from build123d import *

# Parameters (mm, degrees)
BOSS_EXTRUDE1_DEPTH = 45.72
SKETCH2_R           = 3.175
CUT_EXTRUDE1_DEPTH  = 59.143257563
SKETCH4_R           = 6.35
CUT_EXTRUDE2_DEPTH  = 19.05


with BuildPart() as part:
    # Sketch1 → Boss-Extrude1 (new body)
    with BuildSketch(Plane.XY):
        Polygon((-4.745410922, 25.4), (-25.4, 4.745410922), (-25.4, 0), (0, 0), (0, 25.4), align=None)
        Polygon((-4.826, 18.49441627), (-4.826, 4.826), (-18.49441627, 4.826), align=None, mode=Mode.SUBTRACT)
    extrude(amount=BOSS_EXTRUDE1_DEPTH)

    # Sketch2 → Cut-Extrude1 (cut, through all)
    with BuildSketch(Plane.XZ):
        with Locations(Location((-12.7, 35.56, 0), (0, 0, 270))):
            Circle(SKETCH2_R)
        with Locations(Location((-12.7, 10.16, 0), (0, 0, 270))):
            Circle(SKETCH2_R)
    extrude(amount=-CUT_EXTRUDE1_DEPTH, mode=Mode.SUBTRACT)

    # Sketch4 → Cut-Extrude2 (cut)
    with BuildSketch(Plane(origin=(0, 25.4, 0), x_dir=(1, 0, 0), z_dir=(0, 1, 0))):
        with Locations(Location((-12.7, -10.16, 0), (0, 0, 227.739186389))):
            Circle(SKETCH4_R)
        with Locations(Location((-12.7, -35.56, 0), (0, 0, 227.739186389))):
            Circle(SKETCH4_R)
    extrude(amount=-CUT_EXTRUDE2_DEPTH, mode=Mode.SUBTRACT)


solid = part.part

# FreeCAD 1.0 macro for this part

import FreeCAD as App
import Part
import Sketcher

V = App.Vector
Q = App.Units.Quantity

doc = App.newDocument("Part")
params = doc.addObject("Spreadsheet::Sheet", "Params")
for row, (alias, value) in enumerate([
    ("sketch1_width", "1 in"),
    ("sketch1_length", "1.15 in"),
    ("pad1_length", "1.8 in"),
    ("sketch2_diameter", "0.25 in"),
    ("sketch3_diameter", "0.5 in"),
    ("pocket2_length", "0.75 in"),
], start=1):
    params.set(f"A{row}", alias)
    params.set(f"B{row}", "=" + value)
    params.setAlias(f"B{row}", alias)

body = doc.addObject("PartDesign::Body", "Body")

sketch1 = body.newObject("Sketcher::SketchObject", "Sketch")
sketch1.AttachmentSupport = (doc.getObject("XY_Plane"), [""])
sketch1.MapMode = "FlatFace"
sketch1.addGeometry(Part.LineSegment(V(-4.7, 25.4, 0), V(-25.4, 4.7, 0)), False)
sketch1.addGeometry(Part.LineSegment(V(-25.4, 4.7, 0), V(-25.4, 0, 0)), False)
sketch1.addGeometry(Part.LineSegment(V(-25.4, 0, 0), V(0, 0, 0)), False)
sketch1.addGeometry(Part.LineSegment(V(0, 0, 0), V(0, 25.4, 0)), False)
sketch1.addGeometry(Part.LineSegment(V(0, 25.4, 0), V(-4.7, 25.4, 0)), False)
sketch1.addGeometry(Part.LineSegment(V(-18.5, 4.8, 0), V(-4.8, 18.5, 0)), False)
sketch1.addGeometry(Part.LineSegment(V(-4.8, 18.5, 0), V(-4.8, 4.8, 0)), False)
sketch1.addGeometry(Part.LineSegment(V(-4.8, 4.8, 0), V(-18.5, 4.8, 0)), False)
sketch1.addConstraint(Sketcher.Constraint("Coincident", 0, 2, 1, 1))
sketch1.addConstraint(Sketcher.Constraint("Coincident", 1, 2, 2, 1))
sketch1.addConstraint(Sketcher.Constraint("Coincident", 2, 2, 3, 1))
sketch1.addConstraint(Sketcher.Constraint("Coincident", 3, 2, 4, 1))
sketch1.addConstraint(Sketcher.Constraint("Coincident", 4, 2, 0, 1))
sketch1.addConstraint(Sketcher.Constraint("Coincident", 5, 2, 6, 1))
sketch1.addConstraint(Sketcher.Constraint("Coincident", 6, 2, 7, 1))
sketch1.addConstraint(Sketcher.Constraint("Coincident", 7, 2, 5, 1))
sketch1.addConstraint(Sketcher.Constraint("Vertical", 1))
sketch1.addConstraint(Sketcher.Constraint("Horizontal", 2))
sketch1.addConstraint(Sketcher.Constraint("Vertical", 3))
sketch1.addConstraint(Sketcher.Constraint("Horizontal", 4))
sketch1.addConstraint(Sketcher.Constraint("Vertical", 6))
sketch1.addConstraint(Sketcher.Constraint("Horizontal", 7))
sketch1.addConstraint(Sketcher.Constraint("Coincident", 2, 2, -1, 1))
sketch1.addConstraint(Sketcher.Constraint("Parallel", 0, 5))
sketch1.addConstraint(Sketcher.Constraint("Equal", 4, 1))
sketch1.addConstraint(Sketcher.Constraint("Equal", 2, 3))
sketch1.addConstraint(Sketcher.Constraint("DistanceX", 2, 1, 2, 2, Q("1 in")))
sketch1.addConstraint(Sketcher.Constraint("Distance", 0, Q("1.15 in")))
sketch1.addConstraint(Sketcher.Constraint("DistanceX", 5, 2, -1, 1, Q("0.19 in")))
sketch1.addConstraint(Sketcher.Constraint("DistanceY", -1, 1, 6, 2, Q("0.19 in")))
sketch1.addConstraint(Sketcher.Constraint("Distance", 5, 19.33006))
sketch1.setExpression("Constraints[18]", "Params.sketch1_width")
sketch1.setExpression("Constraints[19]", "Params.sketch1_length")
pad1 = body.newObject("PartDesign::Pad", "Pad")
pad1.Profile = sketch1
pad1.setExpression("Length", "Params.pad1_length")

sketch2 = body.newObject("Sketcher::SketchObject", "Sketch001")
sketch2.AttachmentSupport = (doc.getObject("XZ_Plane"), [""])
sketch2.MapMode = "FlatFace"
sketch2.addGeometry(Part.Circle(V(-12.7, 35.6, 0), V(0, 0, 1), 3.2), False)
sketch2.addGeometry(Part.Circle(V(-12.7, 10.2, 0), V(0, 0, 1), 3.2), False)
sketch2.addConstraint(Sketcher.Constraint("Equal", 0, 1))
sketch2.addConstraint(Sketcher.Constraint("Vertical", 0, 3, 1, 3))
sketch2.addConstraint(Sketcher.Constraint("Diameter", 0, Q("0.25 in")))
sketch2.addConstraint(Sketcher.Constraint("DistanceY", 1, 3, 0, 3, Q("1 in")))
sketch2.addConstraint(Sketcher.Constraint("DistanceX", 0, 3, -1, 1, Q("0.5 in")))
sketch2.addConstraint(Sketcher.Constraint("DistanceY", -1, 1, 0, 3, Q("1.4 in")))
sketch2.setExpression("Constraints[2]", "Params.sketch2_diameter")
pocket1 = body.newObject("PartDesign::Pocket", "Pocket")
pocket1.Profile = sketch2
pocket1.Type = "ThroughAll"

sketch3 = body.newObject("Sketcher::SketchObject", "Sketch002")
sketch3.AttachmentSupport = (doc.getObject("XZ_Plane"), [""])
sketch3.MapMode = "FlatFace"
sketch3.AttachmentOffset = App.Placement(V(0, 0, -1 * 25.4), App.Rotation())
sketch3.addGeometry(Part.Circle(V(-13, 10, 0), V(0, 0, 1), 6), False)
sketch3.addGeometry(Part.Circle(V(-13, 36, 0), V(0, 0, 1), 6), False)
sketch3.addConstraint(Sketcher.Constraint("Equal", 0, 1))
sketch3.addConstraint(Sketcher.Constraint("Vertical", 0, 3, 1, 3))
sketch3.addConstraint(Sketcher.Constraint("Diameter", 0, Q("0.5 in")))
sketch3.addConstraint(Sketcher.Constraint("DistanceY", 0, 3, 1, 3, Q("1 in")))
sketch3.addConstraint(Sketcher.Constraint("DistanceX", 0, 3, -1, 1, Q("0.5 in")))
sketch3.addConstraint(Sketcher.Constraint("DistanceY", -1, 1, 0, 3, Q("0.4 in")))
sketch3.setExpression("Constraints[2]", "Params.sketch3_diameter")
pocket2 = body.newObject("PartDesign::Pocket", "Pocket001")
pocket2.Profile = sketch3
pocket2.setExpression("Length", "Params.pocket2_length")
pocket2.Reversed = True

doc.recompute()
